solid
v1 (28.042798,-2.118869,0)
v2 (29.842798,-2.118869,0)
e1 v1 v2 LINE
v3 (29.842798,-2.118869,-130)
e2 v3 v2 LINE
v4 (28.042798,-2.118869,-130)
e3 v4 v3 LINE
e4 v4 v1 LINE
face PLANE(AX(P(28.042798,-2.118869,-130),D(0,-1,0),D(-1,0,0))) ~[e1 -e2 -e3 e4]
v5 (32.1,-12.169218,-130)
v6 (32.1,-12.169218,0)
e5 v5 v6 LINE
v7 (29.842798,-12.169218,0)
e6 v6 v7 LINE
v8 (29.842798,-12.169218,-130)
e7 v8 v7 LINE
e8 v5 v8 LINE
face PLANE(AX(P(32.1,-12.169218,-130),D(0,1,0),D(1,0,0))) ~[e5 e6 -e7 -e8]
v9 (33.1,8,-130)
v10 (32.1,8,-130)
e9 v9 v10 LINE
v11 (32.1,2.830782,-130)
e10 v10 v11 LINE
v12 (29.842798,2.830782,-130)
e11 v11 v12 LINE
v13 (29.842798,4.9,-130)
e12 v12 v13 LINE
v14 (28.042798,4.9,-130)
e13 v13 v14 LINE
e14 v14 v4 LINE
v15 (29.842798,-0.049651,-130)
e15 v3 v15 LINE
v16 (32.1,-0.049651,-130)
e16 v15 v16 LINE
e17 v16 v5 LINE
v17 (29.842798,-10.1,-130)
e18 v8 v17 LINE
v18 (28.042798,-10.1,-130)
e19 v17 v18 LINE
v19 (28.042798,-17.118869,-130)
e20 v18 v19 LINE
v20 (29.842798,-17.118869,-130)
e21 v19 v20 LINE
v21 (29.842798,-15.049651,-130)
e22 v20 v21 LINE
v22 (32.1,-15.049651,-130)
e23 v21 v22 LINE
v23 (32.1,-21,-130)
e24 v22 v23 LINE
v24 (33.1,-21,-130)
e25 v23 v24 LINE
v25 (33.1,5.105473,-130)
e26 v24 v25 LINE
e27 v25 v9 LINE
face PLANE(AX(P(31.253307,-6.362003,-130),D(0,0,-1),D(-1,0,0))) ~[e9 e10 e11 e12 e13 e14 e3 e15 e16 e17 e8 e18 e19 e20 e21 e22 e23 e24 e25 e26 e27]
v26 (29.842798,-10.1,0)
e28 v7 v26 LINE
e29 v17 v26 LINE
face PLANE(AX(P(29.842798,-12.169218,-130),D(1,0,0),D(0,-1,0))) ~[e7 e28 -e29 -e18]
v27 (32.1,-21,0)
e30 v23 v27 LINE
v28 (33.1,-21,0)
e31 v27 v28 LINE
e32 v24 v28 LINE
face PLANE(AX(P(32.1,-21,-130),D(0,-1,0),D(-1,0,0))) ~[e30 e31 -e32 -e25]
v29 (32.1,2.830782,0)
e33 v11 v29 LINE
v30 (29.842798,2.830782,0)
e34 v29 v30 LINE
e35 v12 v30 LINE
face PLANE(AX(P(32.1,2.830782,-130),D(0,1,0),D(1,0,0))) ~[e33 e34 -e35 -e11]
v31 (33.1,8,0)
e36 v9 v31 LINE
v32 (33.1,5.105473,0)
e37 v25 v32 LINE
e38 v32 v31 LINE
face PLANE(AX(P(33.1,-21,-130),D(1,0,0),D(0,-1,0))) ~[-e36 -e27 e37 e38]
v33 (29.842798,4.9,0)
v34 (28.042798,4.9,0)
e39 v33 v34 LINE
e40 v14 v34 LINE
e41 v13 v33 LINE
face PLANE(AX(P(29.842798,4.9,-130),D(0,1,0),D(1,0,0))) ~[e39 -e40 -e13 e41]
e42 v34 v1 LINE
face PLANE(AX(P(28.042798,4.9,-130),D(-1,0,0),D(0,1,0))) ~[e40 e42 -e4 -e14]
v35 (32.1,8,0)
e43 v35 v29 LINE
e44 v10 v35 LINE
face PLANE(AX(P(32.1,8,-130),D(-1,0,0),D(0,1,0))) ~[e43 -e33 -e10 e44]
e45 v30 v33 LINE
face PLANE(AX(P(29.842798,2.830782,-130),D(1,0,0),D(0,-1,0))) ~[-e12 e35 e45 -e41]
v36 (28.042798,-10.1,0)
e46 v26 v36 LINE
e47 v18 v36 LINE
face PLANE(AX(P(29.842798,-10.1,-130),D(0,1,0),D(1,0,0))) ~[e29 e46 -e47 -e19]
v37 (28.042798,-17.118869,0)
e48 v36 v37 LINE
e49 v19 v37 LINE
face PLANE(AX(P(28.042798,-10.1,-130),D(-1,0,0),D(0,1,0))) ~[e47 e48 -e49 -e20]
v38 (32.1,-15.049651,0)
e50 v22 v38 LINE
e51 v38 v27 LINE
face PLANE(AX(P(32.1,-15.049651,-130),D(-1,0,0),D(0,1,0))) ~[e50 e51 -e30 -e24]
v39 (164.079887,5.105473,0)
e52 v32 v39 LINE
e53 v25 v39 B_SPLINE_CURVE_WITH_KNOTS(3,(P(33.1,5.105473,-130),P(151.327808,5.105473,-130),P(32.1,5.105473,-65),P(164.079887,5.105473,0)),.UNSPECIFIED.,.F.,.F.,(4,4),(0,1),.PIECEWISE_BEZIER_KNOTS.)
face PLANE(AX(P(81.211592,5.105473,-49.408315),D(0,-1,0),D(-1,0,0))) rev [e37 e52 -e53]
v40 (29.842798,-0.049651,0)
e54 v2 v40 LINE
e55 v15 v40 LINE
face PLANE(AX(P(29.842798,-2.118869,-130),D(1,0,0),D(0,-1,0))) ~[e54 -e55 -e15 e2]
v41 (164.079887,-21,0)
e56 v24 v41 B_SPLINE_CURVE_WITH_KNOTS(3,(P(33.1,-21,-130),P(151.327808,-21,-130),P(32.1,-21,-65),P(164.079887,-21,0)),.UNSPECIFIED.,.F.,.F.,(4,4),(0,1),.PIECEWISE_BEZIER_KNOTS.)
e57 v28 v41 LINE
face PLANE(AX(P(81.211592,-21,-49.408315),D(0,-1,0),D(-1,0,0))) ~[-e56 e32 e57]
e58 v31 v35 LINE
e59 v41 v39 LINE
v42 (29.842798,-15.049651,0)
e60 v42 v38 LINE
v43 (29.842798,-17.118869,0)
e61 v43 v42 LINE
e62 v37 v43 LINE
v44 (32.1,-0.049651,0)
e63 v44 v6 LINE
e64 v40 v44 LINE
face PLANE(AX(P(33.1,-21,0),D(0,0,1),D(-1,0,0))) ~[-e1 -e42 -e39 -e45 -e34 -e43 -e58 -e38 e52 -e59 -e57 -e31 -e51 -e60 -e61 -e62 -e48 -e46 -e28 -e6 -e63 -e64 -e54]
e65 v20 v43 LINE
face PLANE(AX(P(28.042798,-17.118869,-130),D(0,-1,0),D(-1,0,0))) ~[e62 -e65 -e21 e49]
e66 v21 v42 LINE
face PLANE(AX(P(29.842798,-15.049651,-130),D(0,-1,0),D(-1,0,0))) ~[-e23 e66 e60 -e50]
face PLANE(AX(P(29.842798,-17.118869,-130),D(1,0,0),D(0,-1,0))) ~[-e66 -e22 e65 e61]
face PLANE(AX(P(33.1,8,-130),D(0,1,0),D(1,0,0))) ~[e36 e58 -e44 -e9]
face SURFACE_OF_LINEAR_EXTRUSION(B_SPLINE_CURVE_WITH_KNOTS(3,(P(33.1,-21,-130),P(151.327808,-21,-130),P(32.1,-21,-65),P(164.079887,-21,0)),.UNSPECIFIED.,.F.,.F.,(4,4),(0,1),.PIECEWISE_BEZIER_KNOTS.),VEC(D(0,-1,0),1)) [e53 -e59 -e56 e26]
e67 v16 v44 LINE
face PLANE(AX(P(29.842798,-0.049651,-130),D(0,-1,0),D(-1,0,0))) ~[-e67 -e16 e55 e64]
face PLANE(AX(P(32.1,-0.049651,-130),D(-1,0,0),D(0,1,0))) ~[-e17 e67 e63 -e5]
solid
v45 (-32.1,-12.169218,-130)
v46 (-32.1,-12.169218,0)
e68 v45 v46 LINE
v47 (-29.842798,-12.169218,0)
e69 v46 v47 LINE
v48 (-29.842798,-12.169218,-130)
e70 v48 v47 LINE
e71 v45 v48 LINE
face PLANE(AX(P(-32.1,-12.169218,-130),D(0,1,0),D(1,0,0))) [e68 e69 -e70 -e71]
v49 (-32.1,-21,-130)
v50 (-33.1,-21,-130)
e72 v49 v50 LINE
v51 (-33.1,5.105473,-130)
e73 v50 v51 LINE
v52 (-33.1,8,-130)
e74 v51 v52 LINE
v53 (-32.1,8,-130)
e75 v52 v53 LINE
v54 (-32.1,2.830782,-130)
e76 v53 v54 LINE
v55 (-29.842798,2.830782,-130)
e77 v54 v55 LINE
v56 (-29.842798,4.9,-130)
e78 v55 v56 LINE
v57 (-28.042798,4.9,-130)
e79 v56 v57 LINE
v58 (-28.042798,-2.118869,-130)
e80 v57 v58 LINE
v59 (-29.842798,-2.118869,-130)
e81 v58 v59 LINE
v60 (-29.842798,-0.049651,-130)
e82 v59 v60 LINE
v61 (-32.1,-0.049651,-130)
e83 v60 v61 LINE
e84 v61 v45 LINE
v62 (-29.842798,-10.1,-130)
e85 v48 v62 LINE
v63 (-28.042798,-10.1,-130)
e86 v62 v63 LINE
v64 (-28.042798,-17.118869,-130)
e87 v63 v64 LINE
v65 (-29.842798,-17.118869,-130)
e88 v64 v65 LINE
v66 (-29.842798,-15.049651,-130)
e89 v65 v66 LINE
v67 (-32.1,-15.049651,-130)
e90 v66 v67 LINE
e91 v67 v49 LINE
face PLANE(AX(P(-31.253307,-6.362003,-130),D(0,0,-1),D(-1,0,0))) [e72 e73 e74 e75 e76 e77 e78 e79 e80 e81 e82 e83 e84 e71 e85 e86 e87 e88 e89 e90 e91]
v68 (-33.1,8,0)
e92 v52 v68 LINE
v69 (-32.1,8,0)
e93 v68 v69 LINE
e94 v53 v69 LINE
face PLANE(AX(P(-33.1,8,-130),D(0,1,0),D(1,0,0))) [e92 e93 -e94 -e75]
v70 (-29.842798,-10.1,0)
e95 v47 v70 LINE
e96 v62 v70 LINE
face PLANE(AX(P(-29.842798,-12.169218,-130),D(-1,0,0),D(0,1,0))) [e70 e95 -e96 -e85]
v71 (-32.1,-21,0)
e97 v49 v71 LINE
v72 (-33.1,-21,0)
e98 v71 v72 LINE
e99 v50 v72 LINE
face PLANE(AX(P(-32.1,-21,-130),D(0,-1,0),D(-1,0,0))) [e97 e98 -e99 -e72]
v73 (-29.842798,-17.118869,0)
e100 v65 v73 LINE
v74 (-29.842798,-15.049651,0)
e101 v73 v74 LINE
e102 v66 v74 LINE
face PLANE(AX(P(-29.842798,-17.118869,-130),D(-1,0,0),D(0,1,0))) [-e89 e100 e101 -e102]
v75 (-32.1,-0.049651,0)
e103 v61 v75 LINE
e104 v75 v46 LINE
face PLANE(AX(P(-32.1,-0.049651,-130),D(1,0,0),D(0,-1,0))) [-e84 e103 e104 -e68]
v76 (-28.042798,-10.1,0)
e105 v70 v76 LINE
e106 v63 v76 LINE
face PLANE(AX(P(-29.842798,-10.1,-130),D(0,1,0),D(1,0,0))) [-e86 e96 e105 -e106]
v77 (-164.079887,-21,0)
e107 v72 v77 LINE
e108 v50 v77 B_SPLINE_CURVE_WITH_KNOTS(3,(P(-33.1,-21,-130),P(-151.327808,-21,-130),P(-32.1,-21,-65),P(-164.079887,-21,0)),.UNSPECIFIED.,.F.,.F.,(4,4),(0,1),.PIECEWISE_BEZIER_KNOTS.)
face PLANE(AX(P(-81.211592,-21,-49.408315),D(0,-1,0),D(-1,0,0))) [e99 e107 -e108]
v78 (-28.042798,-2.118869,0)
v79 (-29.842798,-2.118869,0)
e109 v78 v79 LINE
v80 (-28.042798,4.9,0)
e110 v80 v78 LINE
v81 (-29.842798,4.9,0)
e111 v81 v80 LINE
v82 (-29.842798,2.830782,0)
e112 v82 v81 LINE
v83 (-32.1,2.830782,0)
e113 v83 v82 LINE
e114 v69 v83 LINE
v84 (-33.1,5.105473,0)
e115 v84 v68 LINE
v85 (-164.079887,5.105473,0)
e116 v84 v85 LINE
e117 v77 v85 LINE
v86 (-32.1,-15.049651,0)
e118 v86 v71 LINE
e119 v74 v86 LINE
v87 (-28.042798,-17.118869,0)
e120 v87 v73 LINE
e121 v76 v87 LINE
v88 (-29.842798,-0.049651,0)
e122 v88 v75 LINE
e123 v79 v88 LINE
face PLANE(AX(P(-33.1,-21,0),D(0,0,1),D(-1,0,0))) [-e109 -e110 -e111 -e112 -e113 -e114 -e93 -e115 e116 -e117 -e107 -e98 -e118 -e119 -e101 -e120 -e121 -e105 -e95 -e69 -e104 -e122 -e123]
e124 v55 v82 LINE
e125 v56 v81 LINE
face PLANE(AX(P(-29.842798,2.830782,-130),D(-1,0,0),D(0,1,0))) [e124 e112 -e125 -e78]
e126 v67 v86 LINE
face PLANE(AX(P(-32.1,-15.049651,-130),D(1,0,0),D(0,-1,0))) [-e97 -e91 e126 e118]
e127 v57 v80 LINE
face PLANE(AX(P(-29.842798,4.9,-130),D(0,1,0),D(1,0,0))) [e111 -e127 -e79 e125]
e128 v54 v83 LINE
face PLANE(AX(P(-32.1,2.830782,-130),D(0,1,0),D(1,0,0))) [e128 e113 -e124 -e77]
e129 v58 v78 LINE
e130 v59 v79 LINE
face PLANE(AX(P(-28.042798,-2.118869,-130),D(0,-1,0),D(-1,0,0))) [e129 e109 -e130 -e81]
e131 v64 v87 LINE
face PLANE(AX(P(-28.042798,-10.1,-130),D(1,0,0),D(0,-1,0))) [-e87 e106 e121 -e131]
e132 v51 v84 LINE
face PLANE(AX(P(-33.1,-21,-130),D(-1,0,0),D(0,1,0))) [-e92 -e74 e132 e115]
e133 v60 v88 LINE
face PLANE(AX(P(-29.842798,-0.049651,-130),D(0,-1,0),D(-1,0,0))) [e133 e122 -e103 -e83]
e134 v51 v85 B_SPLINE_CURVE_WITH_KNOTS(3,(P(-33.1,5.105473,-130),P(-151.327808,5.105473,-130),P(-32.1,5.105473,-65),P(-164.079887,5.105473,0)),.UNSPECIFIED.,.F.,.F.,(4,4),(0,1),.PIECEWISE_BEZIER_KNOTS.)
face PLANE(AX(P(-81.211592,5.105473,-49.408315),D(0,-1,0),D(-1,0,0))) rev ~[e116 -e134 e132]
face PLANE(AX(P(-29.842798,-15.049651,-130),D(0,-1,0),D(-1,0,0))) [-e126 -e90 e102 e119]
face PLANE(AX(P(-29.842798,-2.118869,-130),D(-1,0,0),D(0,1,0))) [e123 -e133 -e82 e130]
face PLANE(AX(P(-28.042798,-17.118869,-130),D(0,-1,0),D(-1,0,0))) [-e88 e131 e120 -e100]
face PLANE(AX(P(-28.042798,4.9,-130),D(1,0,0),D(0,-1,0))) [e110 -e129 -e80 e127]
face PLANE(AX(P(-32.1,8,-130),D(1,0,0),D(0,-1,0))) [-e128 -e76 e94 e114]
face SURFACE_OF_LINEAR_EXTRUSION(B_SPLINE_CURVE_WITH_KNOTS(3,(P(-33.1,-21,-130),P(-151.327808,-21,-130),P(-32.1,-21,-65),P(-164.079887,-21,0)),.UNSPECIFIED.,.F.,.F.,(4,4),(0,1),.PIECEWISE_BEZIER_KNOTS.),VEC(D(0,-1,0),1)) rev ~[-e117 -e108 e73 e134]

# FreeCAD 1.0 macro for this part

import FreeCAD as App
import Part
import Sketcher
from FreeCAD import Vector
Q = App.Units.Quantity

doc = App.newDocument("Part")
params = doc.addObject("Spreadsheet::Sheet", "Params")
for row, (alias, value) in enumerate([
    ("sketch1_width", "1 mm"),
    ("sketch1_height", "29 mm"),
    ("sketch1_width2", "1.8 mm"),
    ("pad1_length", "130 mm"),
    ("pad2_length", "6 mm"),
    ("pad2_length2", "20.105473 mm"),
], start=1):
    params.set(f"A{row}", alias)
    params.set(f"B{row}", "=" + value)
    params.setAlias(f"B{row}", alias)

body = doc.addObject("PartDesign::Body", "Body")

# Sketch on XY plane
sketch1 = body.newObject("Sketcher::SketchObject", "Sketch")
sketch1.AttachmentSupport = (doc.getObject("XY_Plane"), [""])
sketch1.MapMode = "FlatFace"
sketch1.AttachmentOffset = App.Placement(Vector(0, 0, -130), App.Rotation())
sketch1.addGeometry(Part.LineSegment(Vector(-32.1, -21, 0), Vector(-32.1, -15, 0)), False)
sketch1.addGeometry(Part.LineSegment(Vector(-32.1, -15, 0), Vector(-29.8, -15, 0)), False)
sketch1.addGeometry(Part.LineSegment(Vector(-29.8, -15, 0), Vector(-29.8, -17.1, 0)), False)
sketch1.addGeometry(Part.LineSegment(Vector(-29.8, -17.1, 0), Vector(-28, -17.1, 0)), False)
sketch1.addGeometry(Part.LineSegment(Vector(-28, -17.1, 0), Vector(-28, -10.1, 0)), False)
sketch1.addGeometry(Part.LineSegment(Vector(-28, -10.1, 0), Vector(-29.8, -10.1, 0)), False)
sketch1.addGeometry(Part.LineSegment(Vector(-29.8, -10.1, 0), Vector(-29.8, -12.2, 0)), False)
sketch1.addGeometry(Part.LineSegment(Vector(-29.8, -12.2, 0), Vector(-32.1, -12.2, 0)), False)
sketch1.addGeometry(Part.LineSegment(Vector(-32.1, -12.2, 0), Vector(-32.1, 0, 0)), False)
sketch1.addGeometry(Part.LineSegment(Vector(-32.1, 0, 0), Vector(-29.8, 0, 0)), False)
sketch1.addGeometry(Part.LineSegment(Vector(-29.8, 0, 0), Vector(-29.8, -2.1, 0)), False)
sketch1.addGeometry(Part.LineSegment(Vector(-29.8, -2.1, 0), Vector(-28, -2.1, 0)), False)
sketch1.addGeometry(Part.LineSegment(Vector(-28, -2.1, 0), Vector(-28, 4.9, 0)), False)
sketch1.addGeometry(Part.LineSegment(Vector(-28, 4.9, 0), Vector(-29.8, 4.9, 0)), False)
sketch1.addGeometry(Part.LineSegment(Vector(-29.8, 4.9, 0), Vector(-29.8, 2.8, 0)), False)
sketch1.addGeometry(Part.LineSegment(Vector(-29.8, 2.8, 0), Vector(-32.1, 2.8, 0)), False)
sketch1.addGeometry(Part.LineSegment(Vector(-32.1, 2.8, 0), Vector(-32.1, 8, 0)), False)
sketch1.addGeometry(Part.LineSegment(Vector(-32.1, 8, 0), Vector(-33.1, 8, 0)), False)
sketch1.addGeometry(Part.LineSegment(Vector(-33.1, 8, 0), Vector(-33.1, -21, 0)), False)
sketch1.addGeometry(Part.LineSegment(Vector(-33.1, -21, 0), Vector(-32.1, -21, 0)), False)
sketch1.addConstraint(Sketcher.Constraint("Coincident", 0, 2, 1, 1))
sketch1.addConstraint(Sketcher.Constraint("Coincident", 1, 2, 2, 1))
sketch1.addConstraint(Sketcher.Constraint("Coincident", 2, 2, 3, 1))
sketch1.addConstraint(Sketcher.Constraint("Coincident", 3, 2, 4, 1))
sketch1.addConstraint(Sketcher.Constraint("Coincident", 4, 2, 5, 1))
sketch1.addConstraint(Sketcher.Constraint("Coincident", 5, 2, 6, 1))
sketch1.addConstraint(Sketcher.Constraint("Coincident", 6, 2, 7, 1))
sketch1.addConstraint(Sketcher.Constraint("Coincident", 7, 2, 8, 1))
sketch1.addConstraint(Sketcher.Constraint("Coincident", 8, 2, 9, 1))
sketch1.addConstraint(Sketcher.Constraint("Coincident", 9, 2, 10, 1))
sketch1.addConstraint(Sketcher.Constraint("Coincident", 10, 2, 11, 1))
sketch1.addConstraint(Sketcher.Constraint("Coincident", 11, 2, 12, 1))
sketch1.addConstraint(Sketcher.Constraint("Coincident", 12, 2, 13, 1))
sketch1.addConstraint(Sketcher.Constraint("Coincident", 13, 2, 14, 1))
sketch1.addConstraint(Sketcher.Constraint("Coincident", 14, 2, 15, 1))
sketch1.addConstraint(Sketcher.Constraint("Coincident", 15, 2, 16, 1))
sketch1.addConstraint(Sketcher.Constraint("Coincident", 16, 2, 17, 1))
sketch1.addConstraint(Sketcher.Constraint("Coincident", 17, 2, 18, 1))
sketch1.addConstraint(Sketcher.Constraint("Coincident", 18, 2, 19, 1))
sketch1.addConstraint(Sketcher.Constraint("Coincident", 19, 2, 0, 1))
sketch1.addConstraint(Sketcher.Constraint("Vertical", 0))
sketch1.addConstraint(Sketcher.Constraint("Horizontal", 1))
sketch1.addConstraint(Sketcher.Constraint("Vertical", 2))
sketch1.addConstraint(Sketcher.Constraint("Horizontal", 3))
sketch1.addConstraint(Sketcher.Constraint("Vertical", 4))
sketch1.addConstraint(Sketcher.Constraint("Horizontal", 5))
sketch1.addConstraint(Sketcher.Constraint("Vertical", 6))
sketch1.addConstraint(Sketcher.Constraint("Horizontal", 7))
sketch1.addConstraint(Sketcher.Constraint("Vertical", 8))
sketch1.addConstraint(Sketcher.Constraint("Horizontal", 9))
sketch1.addConstraint(Sketcher.Constraint("Vertical", 10))
sketch1.addConstraint(Sketcher.Constraint("Horizontal", 11))
sketch1.addConstraint(Sketcher.Constraint("Vertical", 12))
sketch1.addConstraint(Sketcher.Constraint("Horizontal", 13))
sketch1.addConstraint(Sketcher.Constraint("Vertical", 14))
sketch1.addConstraint(Sketcher.Constraint("Horizontal", 15))
sketch1.addConstraint(Sketcher.Constraint("Vertical", 16))
sketch1.addConstraint(Sketcher.Constraint("Horizontal", 17))
sketch1.addConstraint(Sketcher.Constraint("Vertical", 18))
sketch1.addConstraint(Sketcher.Constraint("Horizontal", 19))
sketch1.addConstraint(Sketcher.Constraint("Vertical", 2, 2, 5, 2))
sketch1.addConstraint(Sketcher.Constraint("Vertical", 0, 2, 7, 2))
sketch1.addConstraint(Sketcher.Constraint("Vertical", 6, 2, 9, 2))
sketch1.addConstraint(Sketcher.Constraint("Vertical", 4, 2, 11, 2))
sketch1.addConstraint(Sketcher.Constraint("Vertical", 10, 2, 13, 2))
sketch1.addConstraint(Sketcher.Constraint("Vertical", 8, 2, 15, 2))
sketch1.addConstraint(Sketcher.Constraint("Equal", 2, 6))
sketch1.addConstraint(Sketcher.Constraint("Equal", 6, 10))
sketch1.addConstraint(Sketcher.Constraint("Equal", 4, 12))
sketch1.addConstraint(Sketcher.Constraint("Equal", 10, 14))
sketch1.addConstraint(Sketcher.Constraint("DistanceX", 17, 2, 17, 1, Q("1 mm")))
sketch1.addConstraint(Sketcher.Constraint("DistanceY", 18, 2, 18, 1, Q("29 mm")))
sketch1.addConstraint(Sketcher.Constraint("DistanceX", 3, 1, 3, 2, Q("1.8 mm")))
sketch1.addConstraint(Sketcher.Constraint("DistanceY", -1, 1, 16, 2, Q("8 mm")))
sketch1.addConstraint(Sketcher.Constraint("DistanceY", 0, 2, 8, 2, Q("15 mm")))
sketch1.addConstraint(Sketcher.Constraint("DistanceX", 0, 2, -1, 1, Q("32.1 mm")))
sketch1.addConstraint(Sketcher.Constraint("DistanceY", 4, 2, -1, 1, Q("10.1 mm")))
sketch1.addConstraint(Sketcher.Constraint("DistanceY", 0, 1, 0, 2, Q("5.950349 mm")))
sketch1.addConstraint(Sketcher.Constraint("DistanceY", 4, 1, 4, 2, Q("7.018869 mm")))
sketch1.addConstraint(Sketcher.Constraint("DistanceX", 1, 1, 1, 2, Q("2.257202 mm")))
sketch1.setExpression("Constraints[50]", "Params.sketch1_width")
sketch1.setExpression("Constraints[51]", "Params.sketch1_height")
sketch1.setExpression("Constraints[52]", "Params.sketch1_width2")
pad1 = body.newObject("PartDesign::Pad", "Pad")
pad1.Profile = sketch1
pad1.setExpression("Length", "Params.pad1_length")

# Sketch on XZ plane
sketch2 = body.newObject("Sketcher::SketchObject", "Sketch001")
sketch2.AttachmentSupport = (doc.getObject("XZ_Plane"), [""])
sketch2.MapMode = "FlatFace"
sketch2.AttachmentOffset = App.Placement(Vector(0, 0, 0.894527), App.Rotation())
sketch2.addGeometry(Part.LineSegment(Vector(-33.1, 0, 0), Vector(-33.1, -130, 0)), False)
sketch2.addGeometry(Part.BSplineCurve([Vector(-33.1, -130, 0), Vector(-151.327808, -130, 0), Vector(-32.1, -65, 0), Vector(-164.079887, 0, 0)], [4, 4], [0, 1], False, 3, [1, 1, 1, 1], False), False)
sketch2.addGeometry(Part.LineSegment(Vector(-164.079887, 0, 0), Vector(-33.1, 0, 0)), False)
sketch2.addConstraint(Sketcher.Constraint("Block", 1))
sketch2.addConstraint(Sketcher.Constraint("Coincident", 0, 2, 1, 1))
sketch2.addConstraint(Sketcher.Constraint("Coincident", 1, 2, 2, 1))
sketch2.addConstraint(Sketcher.Constraint("Coincident", 2, 2, 0, 1))
sketch2.addConstraint(Sketcher.Constraint("Vertical", 0))
sketch2.addConstraint(Sketcher.Constraint("Horizontal", 2))
pad2 = body.newObject("PartDesign::Pad", "Pad001")
pad2.Profile = sketch2
pad2.Type = "TwoLengths"
pad2.setExpression("Length", "Params.pad2_length")
pad2.setExpression("Length2", "Params.pad2_length2")
pad2.Reversed = True
body2 = doc.addObject("PartDesign::Body", "Body001")
doc.recompute()

mirroring = doc.addObject("Part::Mirroring", "Mirroring")
mirroring.Source = body
mirroring.Base = Vector(0, 0, 0)
mirroring.Normal = Vector(1, 0, 0)
body2.BaseFeature = mirroring
doc.recompute()
mirroring.Visibility = False

doc.recompute()
